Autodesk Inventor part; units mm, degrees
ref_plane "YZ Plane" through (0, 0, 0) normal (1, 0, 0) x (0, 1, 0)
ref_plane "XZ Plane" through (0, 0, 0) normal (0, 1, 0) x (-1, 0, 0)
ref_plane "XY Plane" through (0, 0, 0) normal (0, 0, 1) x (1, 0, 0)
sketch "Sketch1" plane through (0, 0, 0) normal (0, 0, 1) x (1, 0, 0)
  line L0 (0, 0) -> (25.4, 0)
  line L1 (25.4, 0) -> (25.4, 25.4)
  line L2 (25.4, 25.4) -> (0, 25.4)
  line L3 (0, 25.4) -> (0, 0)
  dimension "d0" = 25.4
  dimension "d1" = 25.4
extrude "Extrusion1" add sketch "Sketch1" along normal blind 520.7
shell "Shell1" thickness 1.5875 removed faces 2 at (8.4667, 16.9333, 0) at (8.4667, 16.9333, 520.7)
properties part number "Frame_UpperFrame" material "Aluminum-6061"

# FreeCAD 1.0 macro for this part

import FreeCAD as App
import Part
import Sketcher

V = App.Vector
Q = App.Units.Quantity


def faces_at(feature, points):
    """Names of the faces that lie closest to the given points."""
    faces = feature.Shape.Faces
    near = lambda p: min(range(len(faces)), key=lambda i: faces[i].distToShape(Part.Vertex(*p))[0])
    return sorted({f"Face{near(p) + 1}" for p in points})

doc = App.newDocument("Part")
body = doc.addObject("PartDesign::Body", "Body")

# Sketch on XY plane
sketch1 = body.newObject("Sketcher::SketchObject", "Sketch")
sketch1.AttachmentSupport = (doc.getObject("XY_Plane"), [""])
sketch1.MapMode = "FlatFace"
sketch1.addGeometry([
    Part.LineSegment(V(0, 25, 0), V(0, 0, 0)),
    Part.LineSegment(V(0, 0, 0), V(25, 0, 0)),
    Part.LineSegment(V(25, 0, 0), V(25, 25, 0)),
    Part.LineSegment(V(25, 25, 0), V(0, 25, 0)),
], False)
sketch1.addConstraint([
    Sketcher.Constraint("Coincident", 0, 2, 1, 1),
    Sketcher.Constraint("Coincident", 1, 2, 2, 1),
    Sketcher.Constraint("Coincident", 2, 2, 3, 1),
    Sketcher.Constraint("Coincident", 3, 2, 0, 1),
    Sketcher.Constraint("Vertical", 0),
    Sketcher.Constraint("Horizontal", 1),
    Sketcher.Constraint("Vertical", 2),
    Sketcher.Constraint("Horizontal", 3),
    Sketcher.Constraint("Coincident", 0, 2, -1, 1),
    Sketcher.Constraint("Equal", 3, 0),
    Sketcher.Constraint("DistanceX", 1, 1, 1, 2, Q("1 in")),
])
pad1 = body.newObject("PartDesign::Pad", "Pad")
pad1.Profile = sketch1
pad1.Length = Q("20.5 in")
doc.recompute()

thickness = body.newObject("PartDesign::Thickness", "Thickness")
thickness.Base = (pad1, faces_at(pad1, [(8.467, 16.933, 0), (8.467, 16.933, 520.7)]))
thickness.Value = Q("0.0625 in")
thickness.Reversed = True
thickness.Join = "Intersection"

doc.recompute()
